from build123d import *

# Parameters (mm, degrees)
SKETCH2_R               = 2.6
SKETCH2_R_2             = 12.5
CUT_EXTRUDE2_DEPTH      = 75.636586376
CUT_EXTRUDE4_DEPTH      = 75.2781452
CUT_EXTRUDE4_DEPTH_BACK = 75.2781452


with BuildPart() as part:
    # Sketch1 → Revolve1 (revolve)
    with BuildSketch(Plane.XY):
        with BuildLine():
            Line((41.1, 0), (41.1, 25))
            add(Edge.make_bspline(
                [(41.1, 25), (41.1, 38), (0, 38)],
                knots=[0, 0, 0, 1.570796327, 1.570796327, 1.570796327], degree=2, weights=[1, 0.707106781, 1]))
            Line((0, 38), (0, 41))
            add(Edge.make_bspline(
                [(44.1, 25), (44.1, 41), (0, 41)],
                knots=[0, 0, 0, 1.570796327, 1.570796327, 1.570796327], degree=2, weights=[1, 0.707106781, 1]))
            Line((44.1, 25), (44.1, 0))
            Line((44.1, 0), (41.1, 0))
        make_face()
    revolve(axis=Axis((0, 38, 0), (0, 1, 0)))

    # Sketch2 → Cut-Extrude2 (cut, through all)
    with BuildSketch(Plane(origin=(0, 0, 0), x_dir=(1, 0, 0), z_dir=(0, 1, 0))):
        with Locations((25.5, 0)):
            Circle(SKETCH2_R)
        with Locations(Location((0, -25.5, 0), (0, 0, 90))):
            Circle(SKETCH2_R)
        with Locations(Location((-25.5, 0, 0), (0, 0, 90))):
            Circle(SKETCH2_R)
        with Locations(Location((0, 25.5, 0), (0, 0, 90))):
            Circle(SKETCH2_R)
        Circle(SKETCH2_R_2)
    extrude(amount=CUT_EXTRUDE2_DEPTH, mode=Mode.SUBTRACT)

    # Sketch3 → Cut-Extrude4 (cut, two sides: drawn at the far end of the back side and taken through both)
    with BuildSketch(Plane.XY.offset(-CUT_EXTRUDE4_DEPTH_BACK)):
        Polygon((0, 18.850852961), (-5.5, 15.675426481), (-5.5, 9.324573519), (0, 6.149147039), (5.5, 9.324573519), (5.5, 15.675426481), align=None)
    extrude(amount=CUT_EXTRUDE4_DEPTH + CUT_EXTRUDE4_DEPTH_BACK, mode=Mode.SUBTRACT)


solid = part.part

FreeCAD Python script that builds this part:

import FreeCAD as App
import Part
import Sketcher
Q = App.Units.Quantity

doc = App.newDocument("Part")
body = doc.addObject("PartDesign::Body", "Body")

sketch1 = doc.addObject("Sketcher::SketchObject", "Sketch")
body.addObject(sketch1)
sketch1.AttachmentSupport = (doc.XY_Plane, [""])
sketch1.MapMode = "FlatFace"
sketch1.addGeometry([
    Part.LineSegment(App.Vector(41.1, 25, 0), App.Vector(41.1, 0, 0)),
    Part.LineSegment(App.Vector(41.1, 0, 0), App.Vector(44.1, 0, 0)),
    Part.LineSegment(App.Vector(44.1, 0, 0), App.Vector(44.1, 25, 0)),
    Part.BSplineCurve([App.Vector(44.1, 25, 0), App.Vector(44.1, 41, 0), App.Vector(0, 41, 0)], [3, 3], [0, 1.570796327], False, 2, [1, 0.707106781, 1], False),
    Part.LineSegment(App.Vector(0, 41, 0), App.Vector(0, 38, 0)),
    Part.BSplineCurve([App.Vector(41.1, 25, 0), App.Vector(41.1, 38, 0), App.Vector(0, 38, 0)], [3, 3], [0, 1.570796327], False, 2, [1, 0.707106781, 1], False),
], False)
sketch1.addConstraint([
    Sketcher.Constraint("Block", 3),
    Sketcher.Constraint("Block", 5),
    Sketcher.Constraint("Coincident", 0, 2, 1, 1),
    Sketcher.Constraint("Coincident", 1, 2, 2, 1),
    Sketcher.Constraint("Coincident", 2, 2, 3, 1),
    Sketcher.Constraint("Coincident", 3, 2, 4, 1),
    Sketcher.Constraint("Coincident", 4, 2, 5, 2),
    Sketcher.Constraint("Coincident", 5, 1, 0, 1),
    Sketcher.Constraint("Vertical", 0),
    Sketcher.Constraint("Horizontal", 1),
    Sketcher.Constraint("Vertical", 2),
    Sketcher.Constraint("PointOnObject", 0, 2, -1),
])
revolution = doc.addObject("PartDesign::Revolution", "Revolution")
body.addObject(revolution)
revolution.Profile = sketch1
revolution.ReferenceAxis = (sketch1, ["V_Axis"])
revolution.Angle = 360

sketch2 = doc.addObject("Sketcher::SketchObject", "Sketch001")
body.addObject(sketch2)
sketch2.AttachmentSupport = (doc.XZ_Plane, [""])
sketch2.MapMode = "FlatFace"
sketch2.addGeometry([
    Part.Circle(App.Vector(25.5, 0, 0), App.Vector(0, 0, 1), 2.6),
    Part.Circle(App.Vector(0, 25.5, 0), App.Vector(0, 0, 1), 2.6),
    Part.Circle(App.Vector(-25.5, 0, 0), App.Vector(0, 0, 1), 2.6),
    Part.Circle(App.Vector(0, -25.5, 0), App.Vector(0, 0, 1), 2.6),
    Part.Circle(App.Vector(0, 0, 0), App.Vector(0, 0, 1), 12.5),
], False)
sketch2.addConstraint([
    Sketcher.Constraint("Coincident", 4, 3, -1, 1),
    Sketcher.Constraint("Equal", 0, 1),
    Sketcher.Constraint("Equal", 1, 2),
    Sketcher.Constraint("Equal", 2, 3),
    Sketcher.Constraint("Symmetric", 0, 3, 2, 3, -1, 1),
    Sketcher.Constraint("Symmetric", 1, 3, 3, 3, -1, 1),
    Sketcher.Constraint("PointOnObject", 0, 3, -1),
    Sketcher.Constraint("PointOnObject", 1, 3, -2),
    Sketcher.Constraint("Diameter", 4, 25.0),
    Sketcher.Constraint("Diameter", 0, 5.2),
    Sketcher.Constraint("DistanceX", 2, 3, 0, 3, 51.0),
    Sketcher.Constraint("DistanceY", 3, 3, 1, 3, 51.0),
])
pocket1 = doc.addObject("PartDesign::Pocket", "Pocket")
body.addObject(pocket1)
pocket1.Profile = sketch2
pocket1.Type = "ThroughAll"

sketch3 = doc.addObject("Sketcher::SketchObject", "Sketch002")
body.addObject(sketch3)
sketch3.AttachmentSupport = (doc.XY_Plane, [""])
sketch3.MapMode = "FlatFace"
sketch3.addGeometry([
    Part.LineSegment(App.Vector(0, 19, 0), App.Vector(-6, 16, 0)),
    Part.LineSegment(App.Vector(-6, 16, 0), App.Vector(-6, 9, 0)),
    Part.LineSegment(App.Vector(-6, 9, 0), App.Vector(0, 6, 0)),
    Part.LineSegment(App.Vector(0, 6, 0), App.Vector(6, 9, 0)),
    Part.LineSegment(App.Vector(6, 9, 0), App.Vector(6, 16, 0)),
    Part.LineSegment(App.Vector(6, 16, 0), App.Vector(0, 19, 0)),
], False)
sketch3.addConstraint([
    Sketcher.Constraint("Coincident", 0, 2, 1, 1),
    Sketcher.Constraint("Coincident", 1, 2, 2, 1),
    Sketcher.Constraint("Coincident", 2, 2, 3, 1),
    Sketcher.Constraint("Coincident", 3, 2, 4, 1),
    Sketcher.Constraint("Coincident", 4, 2, 5, 1),
    Sketcher.Constraint("Coincident", 5, 2, 0, 1),
    Sketcher.Constraint("Vertical", 1),
    Sketcher.Constraint("Vertical", 4),
    Sketcher.Constraint("Symmetric", 1, 2, 3, 2, -2),
    Sketcher.Constraint("PointOnObject", 2, 2, -2),
    Sketcher.Constraint("PointOnObject", 5, 2, -2),
    Sketcher.Constraint("Parallel", 0, 3),
    Sketcher.Constraint("Parallel", 2, 5),
    Sketcher.Constraint("Angle", 0, Q("-150 deg")),
    Sketcher.Constraint("DistanceX", 1, 2, 3, 2, 11.0),
    Sketcher.Constraint("DistanceY", 1, 2, 1, 1, 6.350853),
    Sketcher.Constraint("DistanceY", -1, 1, 0, 2, 15.675426),
])
pocket2 = doc.addObject("PartDesign::Pocket", "Pocket001")
body.addObject(pocket2)
pocket2.Profile = sketch3
pocket2.Type = "ThroughAll"
pocket2.Midplane = True

doc.recompute()
